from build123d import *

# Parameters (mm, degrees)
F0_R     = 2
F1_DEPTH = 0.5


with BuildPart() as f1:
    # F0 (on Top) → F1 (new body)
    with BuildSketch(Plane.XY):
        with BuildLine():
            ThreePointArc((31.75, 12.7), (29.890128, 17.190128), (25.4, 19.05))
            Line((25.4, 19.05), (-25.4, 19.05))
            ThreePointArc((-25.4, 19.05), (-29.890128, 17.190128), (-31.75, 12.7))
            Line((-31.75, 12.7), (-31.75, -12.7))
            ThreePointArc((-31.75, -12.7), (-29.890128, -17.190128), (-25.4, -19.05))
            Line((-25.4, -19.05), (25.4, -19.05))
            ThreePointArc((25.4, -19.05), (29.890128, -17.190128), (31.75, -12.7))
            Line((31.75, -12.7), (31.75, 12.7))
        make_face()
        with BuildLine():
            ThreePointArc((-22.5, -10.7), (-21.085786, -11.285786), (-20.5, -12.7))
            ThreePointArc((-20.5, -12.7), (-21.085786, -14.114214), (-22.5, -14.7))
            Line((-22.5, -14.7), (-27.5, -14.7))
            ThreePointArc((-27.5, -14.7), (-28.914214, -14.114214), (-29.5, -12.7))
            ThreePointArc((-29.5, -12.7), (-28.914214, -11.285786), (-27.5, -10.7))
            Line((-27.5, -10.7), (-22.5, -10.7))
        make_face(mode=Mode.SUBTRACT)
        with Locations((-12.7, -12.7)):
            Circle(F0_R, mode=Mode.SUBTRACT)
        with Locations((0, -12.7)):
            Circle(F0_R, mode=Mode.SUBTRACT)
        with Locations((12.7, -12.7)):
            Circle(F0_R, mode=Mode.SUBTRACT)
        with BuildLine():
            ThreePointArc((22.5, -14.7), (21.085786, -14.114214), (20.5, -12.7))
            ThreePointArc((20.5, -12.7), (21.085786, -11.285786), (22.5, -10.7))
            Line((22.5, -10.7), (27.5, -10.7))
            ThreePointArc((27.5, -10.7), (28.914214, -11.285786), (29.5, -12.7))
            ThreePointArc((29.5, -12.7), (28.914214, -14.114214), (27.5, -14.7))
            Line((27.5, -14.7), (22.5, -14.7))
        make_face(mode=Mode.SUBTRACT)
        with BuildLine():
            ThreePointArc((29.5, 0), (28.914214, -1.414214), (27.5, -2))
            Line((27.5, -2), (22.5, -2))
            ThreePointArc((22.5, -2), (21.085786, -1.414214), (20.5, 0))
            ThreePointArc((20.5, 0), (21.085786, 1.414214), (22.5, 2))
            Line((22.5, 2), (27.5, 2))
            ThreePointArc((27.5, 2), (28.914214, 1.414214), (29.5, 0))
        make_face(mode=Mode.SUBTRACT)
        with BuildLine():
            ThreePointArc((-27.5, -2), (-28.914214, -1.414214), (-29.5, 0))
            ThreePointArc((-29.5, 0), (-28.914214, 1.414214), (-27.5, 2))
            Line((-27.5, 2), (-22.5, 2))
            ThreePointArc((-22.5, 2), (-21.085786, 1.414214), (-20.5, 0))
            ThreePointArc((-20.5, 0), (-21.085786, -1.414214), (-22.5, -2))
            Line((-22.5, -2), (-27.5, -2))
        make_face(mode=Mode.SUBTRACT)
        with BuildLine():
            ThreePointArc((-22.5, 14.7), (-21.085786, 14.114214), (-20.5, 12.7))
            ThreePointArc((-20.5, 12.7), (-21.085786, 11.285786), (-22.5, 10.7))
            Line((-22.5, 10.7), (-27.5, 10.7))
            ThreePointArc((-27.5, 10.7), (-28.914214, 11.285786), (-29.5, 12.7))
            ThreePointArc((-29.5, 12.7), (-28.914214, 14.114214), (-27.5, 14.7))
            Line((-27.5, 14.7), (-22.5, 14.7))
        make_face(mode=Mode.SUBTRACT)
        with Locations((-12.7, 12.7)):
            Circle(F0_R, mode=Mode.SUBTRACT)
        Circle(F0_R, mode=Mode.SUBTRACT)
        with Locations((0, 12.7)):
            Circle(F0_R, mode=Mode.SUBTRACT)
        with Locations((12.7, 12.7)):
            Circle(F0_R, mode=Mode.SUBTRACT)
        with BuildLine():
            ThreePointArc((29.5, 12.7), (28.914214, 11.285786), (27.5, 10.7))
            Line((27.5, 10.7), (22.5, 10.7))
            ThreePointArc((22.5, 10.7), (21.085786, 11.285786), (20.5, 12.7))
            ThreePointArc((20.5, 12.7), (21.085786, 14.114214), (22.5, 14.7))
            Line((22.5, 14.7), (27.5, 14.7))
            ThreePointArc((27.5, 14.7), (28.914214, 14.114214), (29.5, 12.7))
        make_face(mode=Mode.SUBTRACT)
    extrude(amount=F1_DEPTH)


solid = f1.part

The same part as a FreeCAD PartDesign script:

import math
import FreeCAD as App
import Part
import Sketcher

V = App.Vector
Q = App.Units.Quantity

doc = App.newDocument("Part")
body = doc.addObject("PartDesign::Body", "Body")

# Sketch on XY plane
sketch1 = body.newObject("Sketcher::SketchObject", "Sketch")
sketch1.AttachmentSupport = (doc.getObject("XY_Plane"), [""])
sketch1.MapMode = "FlatFace"
sketch1.addGeometry(Part.ArcOfCircle(Part.Circle(V(25.4, 12.7, 0), V(0, 0, 1), 6.4), math.radians(0), math.radians(90)), False)
sketch1.addGeometry(Part.LineSegment(V(25.4, 19.1, 0), V(-25.4, 19.1, 0)), False)
sketch1.addGeometry(Part.ArcOfCircle(Part.Circle(V(-25.4, 12.7, 0), V(0, 0, 1), 6.4), math.radians(90), math.radians(180)), False)
sketch1.addGeometry(Part.LineSegment(V(-31.8, 12.7, 0), V(-31.8, -12.7, 0)), False)
sketch1.addGeometry(Part.ArcOfCircle(Part.Circle(V(-25.4, -12.7, 0), V(0, 0, 1), 6.4), math.radians(-180), math.radians(-90)), False)
sketch1.addGeometry(Part.LineSegment(V(-25.4, -19.1, 0), V(25.4, -19.1, 0)), False)
sketch1.addGeometry(Part.ArcOfCircle(Part.Circle(V(25.4, -12.7, 0), V(0, 0, 1), 6.4), math.radians(-90), math.radians(0)), False)
sketch1.addGeometry(Part.LineSegment(V(31.8, -12.7, 0), V(31.8, 12.7, 0)), False)
sketch1.addGeometry(Part.LineSegment(V(-27.5, -10.7, 0), V(-22.5, -10.7, 0)), False)
sketch1.addGeometry(Part.ArcOfCircle(Part.Circle(V(-22.5, -12.7, 0), V(0, 0, 1), 2), math.radians(0), math.radians(90)), False)
sketch1.addGeometry(Part.ArcOfCircle(Part.Circle(V(-22.5, -12.7, 0), V(0, 0, 1), 2), math.radians(-90), math.radians(0)), False)
sketch1.addGeometry(Part.LineSegment(V(-22.5, -14.7, 0), V(-27.5, -14.7, 0)), False)
sketch1.addGeometry(Part.ArcOfCircle(Part.Circle(V(-27.5, -12.7, 0), V(0, 0, 1), 2), math.radians(180), math.radians(270)), False)
sketch1.addGeometry(Part.ArcOfCircle(Part.Circle(V(-27.5, -12.7, 0), V(0, 0, 1), 2), math.radians(90), math.radians(180)), False)
sketch1.addGeometry(Part.Circle(V(-12.7, -12.7, 0), V(0, 0, 1), 2), False)
sketch1.addGeometry(Part.Circle(V(0, -12.7, 0), V(0, 0, 1), 2), False)
sketch1.addGeometry(Part.Circle(V(12.7, -12.7, 0), V(0, 0, 1), 2), False)
sketch1.addGeometry(Part.LineSegment(V(27.5, -14.7, 0), V(22.5, -14.7, 0)), False)
sketch1.addGeometry(Part.ArcOfCircle(Part.Circle(V(22.5, -12.7, 0), V(0, 0, 1), 2), math.radians(180), math.radians(270)), False)
sketch1.addGeometry(Part.ArcOfCircle(Part.Circle(V(22.5, -12.7, 0), V(0, 0, 1), 2), math.radians(90), math.radians(180)), False)
sketch1.addGeometry(Part.LineSegment(V(22.5, -10.7, 0), V(27.5, -10.7, 0)), False)
sketch1.addGeometry(Part.ArcOfCircle(Part.Circle(V(27.5, -12.7, 0), V(0, 0, 1), 2), math.radians(0), math.radians(90)), False)
sketch1.addGeometry(Part.ArcOfCircle(Part.Circle(V(27.5, -12.7, 0), V(0, 0, 1), 2), math.radians(-90), math.radians(0)), False)
sketch1.addGeometry(Part.LineSegment(V(-22.5, -2, 0), V(-27.5, -2, 0)), False)
sketch1.addGeometry(Part.ArcOfCircle(Part.Circle(V(-27.5, 0, 0), V(0, 0, 1), 2), math.radians(180), math.radians(270)), False)
sketch1.addGeometry(Part.ArcOfCircle(Part.Circle(V(-27.5, 0, 0), V(0, 0, 1), 2), math.radians(90), math.radians(180)), False)
sketch1.addGeometry(Part.LineSegment(V(-27.5, 2, 0), V(-22.5, 2, 0)), False)
sketch1.addGeometry(Part.ArcOfCircle(Part.Circle(V(-22.5, 0, 0), V(0, 0, 1), 2), math.radians(0), math.radians(90)), False)
sketch1.addGeometry(Part.ArcOfCircle(Part.Circle(V(-22.5, 0, 0), V(0, 0, 1), 2), math.radians(-90), math.radians(0)), False)
sketch1.addGeometry(Part.LineSegment(V(-27.5, 14.7, 0), V(-22.5, 14.7, 0)), False)
sketch1.addGeometry(Part.ArcOfCircle(Part.Circle(V(-22.5, 12.7, 0), V(0, 0, 1), 2), math.radians(0), math.radians(90)), False)
sketch1.addGeometry(Part.ArcOfCircle(Part.Circle(V(-22.5, 12.7, 0), V(0, 0, 1), 2), math.radians(-90), math.radians(0)), False)
sketch1.addGeometry(Part.LineSegment(V(-22.5, 10.7, 0), V(-27.5, 10.7, 0)), False)
sketch1.addGeometry(Part.ArcOfCircle(Part.Circle(V(-27.5, 12.7, 0), V(0, 0, 1), 2), math.radians(180), math.radians(270)), False)
sketch1.addGeometry(Part.ArcOfCircle(Part.Circle(V(-27.5, 12.7, 0), V(0, 0, 1), 2), math.radians(90), math.radians(180)), False)
sketch1.addGeometry(Part.Circle(V(-12.7, 12.7, 0), V(0, 0, 1), 2), False)
sketch1.addGeometry(Part.Circle(V(0, 0, 0), V(0, 0, 1), 2), False)
sketch1.addGeometry(Part.ArcOfCircle(Part.Circle(V(27.5, 0, 0), V(0, 0, 1), 2), math.radians(0), math.radians(90)), False)
sketch1.addGeometry(Part.ArcOfCircle(Part.Circle(V(27.5, 0, 0), V(0, 0, 1), 2), math.radians(-90), math.radians(0)), False)
sketch1.addGeometry(Part.LineSegment(V(27.5, -2, 0), V(22.5, -2, 0)), False)
sketch1.addGeometry(Part.ArcOfCircle(Part.Circle(V(22.5, 0, 0), V(0, 0, 1), 2), math.radians(180), math.radians(270)), False)
sketch1.addGeometry(Part.ArcOfCircle(Part.Circle(V(22.5, 0, 0), V(0, 0, 1), 2), math.radians(90), math.radians(180)), False)
sketch1.addGeometry(Part.LineSegment(V(22.5, 2, 0), V(27.5, 2, 0)), False)
sketch1.addGeometry(Part.Circle(V(0, 12.7, 0), V(0, 0, 1), 2), False)
sketch1.addGeometry(Part.Circle(V(12.7, 12.7, 0), V(0, 0, 1), 2), False)
sketch1.addGeometry(Part.ArcOfCircle(Part.Circle(V(27.5, 12.7, 0), V(0, 0, 1), 2), math.radians(0), math.radians(90)), False)
sketch1.addGeometry(Part.ArcOfCircle(Part.Circle(V(27.5, 12.7, 0), V(0, 0, 1), 2), math.radians(-90), math.radians(0)), False)
sketch1.addGeometry(Part.LineSegment(V(27.5, 10.7, 0), V(22.5, 10.7, 0)), False)
sketch1.addGeometry(Part.ArcOfCircle(Part.Circle(V(22.5, 12.7, 0), V(0, 0, 1), 2), math.radians(180), math.radians(270)), False)
sketch1.addGeometry(Part.ArcOfCircle(Part.Circle(V(22.5, 12.7, 0), V(0, 0, 1), 2), math.radians(90), math.radians(180)), False)
sketch1.addGeometry(Part.LineSegment(V(22.5, 14.7, 0), V(27.5, 14.7, 0)), False)
sketch1.addConstraint(Sketcher.Constraint("Tangent", 0, 2, 1, 1))
sketch1.addConstraint(Sketcher.Constraint("Tangent", 1, 2, 2, 1))
sketch1.addConstraint(Sketcher.Constraint("Tangent", 2, 2, 3, 1))
sketch1.addConstraint(Sketcher.Constraint("Tangent", 3, 2, 4, 1))
sketch1.addConstraint(Sketcher.Constraint("Tangent", 4, 2, 5, 1))
sketch1.addConstraint(Sketcher.Constraint("Tangent", 5, 2, 6, 1))
sketch1.addConstraint(Sketcher.Constraint("Tangent", 6, 2, 7, 1))
sketch1.addConstraint(Sketcher.Constraint("Tangent", 7, 2, 0, 1))
sketch1.addConstraint(Sketcher.Constraint("Tangent", 8, 2, 9, 2))
sketch1.addConstraint(Sketcher.Constraint("Tangent", 9, 1, 10, 2))
sketch1.addConstraint(Sketcher.Constraint("Tangent", 10, 1, 11, 1))
sketch1.addConstraint(Sketcher.Constraint("Tangent", 11, 2, 12, 2))
sketch1.addConstraint(Sketcher.Constraint("Tangent", 12, 1, 13, 2))
sketch1.addConstraint(Sketcher.Constraint("Tangent", 13, 1, 8, 1))
sketch1.addConstraint(Sketcher.Constraint("Tangent", 17, 2, 18, 2))
sketch1.addConstraint(Sketcher.Constraint("Tangent", 18, 1, 19, 2))
sketch1.addConstraint(Sketcher.Constraint("Tangent", 19, 1, 20, 1))
sketch1.addConstraint(Sketcher.Constraint("Tangent", 20, 2, 21, 2))
sketch1.addConstraint(Sketcher.Constraint("Tangent", 21, 1, 22, 2))
sketch1.addConstraint(Sketcher.Constraint("Tangent", 22, 1, 17, 1))
sketch1.addConstraint(Sketcher.Constraint("Tangent", 23, 2, 24, 2))
sketch1.addConstraint(Sketcher.Constraint("Tangent", 24, 1, 25, 2))
sketch1.addConstraint(Sketcher.Constraint("Tangent", 25, 1, 26, 1))
sketch1.addConstraint(Sketcher.Constraint("Tangent", 26, 2, 27, 2))
sketch1.addConstraint(Sketcher.Constraint("Tangent", 27, 1, 28, 2))
sketch1.addConstraint(Sketcher.Constraint("Tangent", 28, 1, 23, 1))
sketch1.addConstraint(Sketcher.Constraint("Tangent", 29, 2, 30, 2))
sketch1.addConstraint(Sketcher.Constraint("Tangent", 30, 1, 31, 2))
sketch1.addConstraint(Sketcher.Constraint("Tangent", 31, 1, 32, 1))
sketch1.addConstraint(Sketcher.Constraint("Tangent", 32, 2, 33, 2))
sketch1.addConstraint(Sketcher.Constraint("Tangent", 33, 1, 34, 2))
sketch1.addConstraint(Sketcher.Constraint("Tangent", 34, 1, 29, 1))
sketch1.addConstraint(Sketcher.Constraint("Tangent", 37, 1, 38, 2))
sketch1.addConstraint(Sketcher.Constraint("Tangent", 38, 1, 39, 1))
sketch1.addConstraint(Sketcher.Constraint("Tangent", 39, 2, 40, 2))
sketch1.addConstraint(Sketcher.Constraint("Tangent", 40, 1, 41, 2))
sketch1.addConstraint(Sketcher.Constraint("Tangent", 41, 1, 42, 1))
sketch1.addConstraint(Sketcher.Constraint("Tangent", 42, 2, 37, 2))
sketch1.addConstraint(Sketcher.Constraint("Tangent", 45, 1, 46, 2))
sketch1.addConstraint(Sketcher.Constraint("Tangent", 46, 1, 47, 1))
sketch1.addConstraint(Sketcher.Constraint("Tangent", 47, 2, 48, 2))
sketch1.addConstraint(Sketcher.Constraint("Tangent", 48, 1, 49, 2))
sketch1.addConstraint(Sketcher.Constraint("Tangent", 49, 1, 50, 1))
sketch1.addConstraint(Sketcher.Constraint("Tangent", 50, 2, 45, 2))
sketch1.addConstraint(Sketcher.Constraint("Horizontal", 1))
sketch1.addConstraint(Sketcher.Constraint("Vertical", 3))
sketch1.addConstraint(Sketcher.Constraint("Horizontal", 5))
sketch1.addConstraint(Sketcher.Constraint("Vertical", 7))
sketch1.addConstraint(Sketcher.Constraint("Horizontal", 8))
sketch1.addConstraint(Sketcher.Constraint("Horizontal", 11))
sketch1.addConstraint(Sketcher.Constraint("Horizontal", 17))
sketch1.addConstraint(Sketcher.Constraint("Horizontal", 20))
sketch1.addConstraint(Sketcher.Constraint("Horizontal", 23))
sketch1.addConstraint(Sketcher.Constraint("Horizontal", 26))
sketch1.addConstraint(Sketcher.Constraint("Horizontal", 29))
sketch1.addConstraint(Sketcher.Constraint("Horizontal", 32))
sketch1.addConstraint(Sketcher.Constraint("Horizontal", 39))
sketch1.addConstraint(Sketcher.Constraint("Horizontal", 42))
sketch1.addConstraint(Sketcher.Constraint("Horizontal", 47))
sketch1.addConstraint(Sketcher.Constraint("Horizontal", 50))
sketch1.addConstraint(Sketcher.Constraint("Coincident", 36, 3, -1, 1))
sketch1.addConstraint(Sketcher.Constraint("Equal", 0, 2))
sketch1.addConstraint(Sketcher.Constraint("Equal", 2, 4))
sketch1.addConstraint(Sketcher.Constraint("Equal", 4, 6))
sketch1.addConstraint(Sketcher.Constraint("Equal", 9, 10))
sketch1.addConstraint(Sketcher.Constraint("Equal", 10, 12))
sketch1.addConstraint(Sketcher.Constraint("Equal", 13, 14))
sketch1.addConstraint(Sketcher.Constraint("Equal", 14, 15))
sketch1.addConstraint(Sketcher.Constraint("Equal", 15, 16))
sketch1.addConstraint(Sketcher.Constraint("Equal", 16, 18))
sketch1.addConstraint(Sketcher.Constraint("Equal", 18, 19))
sketch1.addConstraint(Sketcher.Constraint("Equal", 19, 21))
sketch1.addConstraint(Sketcher.Constraint("Equal", 22, 24))
sketch1.addConstraint(Sketcher.Constraint("Equal", 24, 25))
sketch1.addConstraint(Sketcher.Constraint("Equal", 25, 27))
sketch1.addConstraint(Sketcher.Constraint("Equal", 28, 30))
sketch1.addConstraint(Sketcher.Constraint("Equal", 30, 31))
sketch1.addConstraint(Sketcher.Constraint("Equal", 31, 33))
sketch1.addConstraint(Sketcher.Constraint("Equal", 34, 35))
sketch1.addConstraint(Sketcher.Constraint("Equal", 35, 36))
sketch1.addConstraint(Sketcher.Constraint("Equal", 36, 37))
sketch1.addConstraint(Sketcher.Constraint("Equal", 37, 38))
sketch1.addConstraint(Sketcher.Constraint("Equal", 38, 40))
sketch1.addConstraint(Sketcher.Constraint("Equal", 41, 43))
sketch1.addConstraint(Sketcher.Constraint("Equal", 43, 44))
sketch1.addConstraint(Sketcher.Constraint("Equal", 44, 45))
sketch1.addConstraint(Sketcher.Constraint("Equal", 45, 46))
sketch1.addConstraint(Sketcher.Constraint("Equal", 46, 48))
sketch1.addConstraint(Sketcher.Constraint("Symmetric", 0, 3, 4, 3, -1, 1))
sketch1.addConstraint(Sketcher.Constraint("Symmetric", 18, 3, 30, 3, -1, 1))
sketch1.addConstraint(Sketcher.Constraint("Symmetric", 16, 3, 35, 3, -1, 1))
sketch1.addConstraint(Sketcher.Constraint("Symmetric", 24, 3, 37, 3, -1, 1))
sketch1.addConstraint(Sketcher.Constraint("Symmetric", 15, 3, 43, 3, -1, 1))
sketch1.addConstraint(Sketcher.Constraint("Symmetric", 14, 3, 44, 3, -1, 1))
sketch1.addConstraint(Sketcher.Constraint("Symmetric", 12, 3, 45, 3, -1, 1))
sketch1.addConstraint(Sketcher.Constraint("Symmetric", 21, 1, 33, 1, -1, 1))
sketch1.addConstraint(Sketcher.Constraint("Symmetric", 27, 1, 40, 1, -1, 1))
sketch1.addConstraint(Sketcher.Constraint("Symmetric", 9, 1, 48, 1, -1, 1))
sketch1.addConstraint(Sketcher.Constraint("Symmetric", 14, 3, 16, 3, -2))
sketch1.addConstraint(Sketcher.Constraint("Symmetric", 9, 3, 18, 3, -2))
sketch1.addConstraint(Sketcher.Constraint("Symmetric", 12, 1, 21, 1, -2))
sketch1.addConstraint(Sketcher.Constraint("PointOnObject", 15, 3, -2))
sketch1.addConstraint(Sketcher.Constraint("PointOnObject", 24, 3, -1))
sketch1.addConstraint(Sketcher.Constraint("PointOnObject", 24, 1, -1))
sketch1.addConstraint(Sketcher.Constraint("PointOnObject", 27, 1, -1))
sketch1.addConstraint(Sketcher.Constraint("PointOnObject", 37, 1, -1))
sketch1.addConstraint(Sketcher.Constraint("Horizontal", 6, 3, 9, 3))
sketch1.addConstraint(Sketcher.Constraint("Horizontal", 13, 3, 14, 3))
sketch1.addConstraint(Sketcher.Constraint("Horizontal", 14, 3, 15, 3))
sketch1.addConstraint(Sketcher.Constraint("Horizontal", 6, 2, 9, 1))
sketch1.addConstraint(Sketcher.Constraint("Horizontal", 9, 1, 12, 1))
sketch1.addConstraint(Sketcher.Constraint("Horizontal", 12, 1, 18, 1))
sketch1.addConstraint(Sketcher.Constraint("Horizontal", 7, 2, 30, 1))
sketch1.addConstraint(Sketcher.Constraint("Horizontal", 33, 1, 45, 1))
sketch1.addConstraint(Sketcher.Constraint("Vertical", 13, 3, 24, 3))
sketch1.addConstraint(Sketcher.Constraint("Vertical", 10, 3, 27, 3))
sketch1.addConstraint(Sketcher.Constraint("Diameter", 14, Q("4 mm")))
sketch1.addConstraint(Sketcher.Constraint("DistanceX", 8, 1, 8, 2, Q("5 mm")))
sketch1.addConstraint(Sketcher.Constraint("Radius", 0, Q("6.35 mm")))
sketch1.addConstraint(Sketcher.Constraint("DistanceX", 1, 2, 1, 1, Q("50.8 mm")))
sketch1.addConstraint(Sketcher.Constraint("DistanceY", 3, 2, 3, 1, Q("25.4 mm")))
sketch1.addConstraint(Sketcher.Constraint("DistanceX", 9, 3, -1, 1, Q("22.499999 mm")))
sketch1.addConstraint(Sketcher.Constraint("DistanceX", 14, 3, -1, 1, Q("12.7 mm")))
pad1 = body.newObject("PartDesign::Pad", "Pad")
pad1.Profile = sketch1
pad1.Length = 0.5

doc.recompute()
